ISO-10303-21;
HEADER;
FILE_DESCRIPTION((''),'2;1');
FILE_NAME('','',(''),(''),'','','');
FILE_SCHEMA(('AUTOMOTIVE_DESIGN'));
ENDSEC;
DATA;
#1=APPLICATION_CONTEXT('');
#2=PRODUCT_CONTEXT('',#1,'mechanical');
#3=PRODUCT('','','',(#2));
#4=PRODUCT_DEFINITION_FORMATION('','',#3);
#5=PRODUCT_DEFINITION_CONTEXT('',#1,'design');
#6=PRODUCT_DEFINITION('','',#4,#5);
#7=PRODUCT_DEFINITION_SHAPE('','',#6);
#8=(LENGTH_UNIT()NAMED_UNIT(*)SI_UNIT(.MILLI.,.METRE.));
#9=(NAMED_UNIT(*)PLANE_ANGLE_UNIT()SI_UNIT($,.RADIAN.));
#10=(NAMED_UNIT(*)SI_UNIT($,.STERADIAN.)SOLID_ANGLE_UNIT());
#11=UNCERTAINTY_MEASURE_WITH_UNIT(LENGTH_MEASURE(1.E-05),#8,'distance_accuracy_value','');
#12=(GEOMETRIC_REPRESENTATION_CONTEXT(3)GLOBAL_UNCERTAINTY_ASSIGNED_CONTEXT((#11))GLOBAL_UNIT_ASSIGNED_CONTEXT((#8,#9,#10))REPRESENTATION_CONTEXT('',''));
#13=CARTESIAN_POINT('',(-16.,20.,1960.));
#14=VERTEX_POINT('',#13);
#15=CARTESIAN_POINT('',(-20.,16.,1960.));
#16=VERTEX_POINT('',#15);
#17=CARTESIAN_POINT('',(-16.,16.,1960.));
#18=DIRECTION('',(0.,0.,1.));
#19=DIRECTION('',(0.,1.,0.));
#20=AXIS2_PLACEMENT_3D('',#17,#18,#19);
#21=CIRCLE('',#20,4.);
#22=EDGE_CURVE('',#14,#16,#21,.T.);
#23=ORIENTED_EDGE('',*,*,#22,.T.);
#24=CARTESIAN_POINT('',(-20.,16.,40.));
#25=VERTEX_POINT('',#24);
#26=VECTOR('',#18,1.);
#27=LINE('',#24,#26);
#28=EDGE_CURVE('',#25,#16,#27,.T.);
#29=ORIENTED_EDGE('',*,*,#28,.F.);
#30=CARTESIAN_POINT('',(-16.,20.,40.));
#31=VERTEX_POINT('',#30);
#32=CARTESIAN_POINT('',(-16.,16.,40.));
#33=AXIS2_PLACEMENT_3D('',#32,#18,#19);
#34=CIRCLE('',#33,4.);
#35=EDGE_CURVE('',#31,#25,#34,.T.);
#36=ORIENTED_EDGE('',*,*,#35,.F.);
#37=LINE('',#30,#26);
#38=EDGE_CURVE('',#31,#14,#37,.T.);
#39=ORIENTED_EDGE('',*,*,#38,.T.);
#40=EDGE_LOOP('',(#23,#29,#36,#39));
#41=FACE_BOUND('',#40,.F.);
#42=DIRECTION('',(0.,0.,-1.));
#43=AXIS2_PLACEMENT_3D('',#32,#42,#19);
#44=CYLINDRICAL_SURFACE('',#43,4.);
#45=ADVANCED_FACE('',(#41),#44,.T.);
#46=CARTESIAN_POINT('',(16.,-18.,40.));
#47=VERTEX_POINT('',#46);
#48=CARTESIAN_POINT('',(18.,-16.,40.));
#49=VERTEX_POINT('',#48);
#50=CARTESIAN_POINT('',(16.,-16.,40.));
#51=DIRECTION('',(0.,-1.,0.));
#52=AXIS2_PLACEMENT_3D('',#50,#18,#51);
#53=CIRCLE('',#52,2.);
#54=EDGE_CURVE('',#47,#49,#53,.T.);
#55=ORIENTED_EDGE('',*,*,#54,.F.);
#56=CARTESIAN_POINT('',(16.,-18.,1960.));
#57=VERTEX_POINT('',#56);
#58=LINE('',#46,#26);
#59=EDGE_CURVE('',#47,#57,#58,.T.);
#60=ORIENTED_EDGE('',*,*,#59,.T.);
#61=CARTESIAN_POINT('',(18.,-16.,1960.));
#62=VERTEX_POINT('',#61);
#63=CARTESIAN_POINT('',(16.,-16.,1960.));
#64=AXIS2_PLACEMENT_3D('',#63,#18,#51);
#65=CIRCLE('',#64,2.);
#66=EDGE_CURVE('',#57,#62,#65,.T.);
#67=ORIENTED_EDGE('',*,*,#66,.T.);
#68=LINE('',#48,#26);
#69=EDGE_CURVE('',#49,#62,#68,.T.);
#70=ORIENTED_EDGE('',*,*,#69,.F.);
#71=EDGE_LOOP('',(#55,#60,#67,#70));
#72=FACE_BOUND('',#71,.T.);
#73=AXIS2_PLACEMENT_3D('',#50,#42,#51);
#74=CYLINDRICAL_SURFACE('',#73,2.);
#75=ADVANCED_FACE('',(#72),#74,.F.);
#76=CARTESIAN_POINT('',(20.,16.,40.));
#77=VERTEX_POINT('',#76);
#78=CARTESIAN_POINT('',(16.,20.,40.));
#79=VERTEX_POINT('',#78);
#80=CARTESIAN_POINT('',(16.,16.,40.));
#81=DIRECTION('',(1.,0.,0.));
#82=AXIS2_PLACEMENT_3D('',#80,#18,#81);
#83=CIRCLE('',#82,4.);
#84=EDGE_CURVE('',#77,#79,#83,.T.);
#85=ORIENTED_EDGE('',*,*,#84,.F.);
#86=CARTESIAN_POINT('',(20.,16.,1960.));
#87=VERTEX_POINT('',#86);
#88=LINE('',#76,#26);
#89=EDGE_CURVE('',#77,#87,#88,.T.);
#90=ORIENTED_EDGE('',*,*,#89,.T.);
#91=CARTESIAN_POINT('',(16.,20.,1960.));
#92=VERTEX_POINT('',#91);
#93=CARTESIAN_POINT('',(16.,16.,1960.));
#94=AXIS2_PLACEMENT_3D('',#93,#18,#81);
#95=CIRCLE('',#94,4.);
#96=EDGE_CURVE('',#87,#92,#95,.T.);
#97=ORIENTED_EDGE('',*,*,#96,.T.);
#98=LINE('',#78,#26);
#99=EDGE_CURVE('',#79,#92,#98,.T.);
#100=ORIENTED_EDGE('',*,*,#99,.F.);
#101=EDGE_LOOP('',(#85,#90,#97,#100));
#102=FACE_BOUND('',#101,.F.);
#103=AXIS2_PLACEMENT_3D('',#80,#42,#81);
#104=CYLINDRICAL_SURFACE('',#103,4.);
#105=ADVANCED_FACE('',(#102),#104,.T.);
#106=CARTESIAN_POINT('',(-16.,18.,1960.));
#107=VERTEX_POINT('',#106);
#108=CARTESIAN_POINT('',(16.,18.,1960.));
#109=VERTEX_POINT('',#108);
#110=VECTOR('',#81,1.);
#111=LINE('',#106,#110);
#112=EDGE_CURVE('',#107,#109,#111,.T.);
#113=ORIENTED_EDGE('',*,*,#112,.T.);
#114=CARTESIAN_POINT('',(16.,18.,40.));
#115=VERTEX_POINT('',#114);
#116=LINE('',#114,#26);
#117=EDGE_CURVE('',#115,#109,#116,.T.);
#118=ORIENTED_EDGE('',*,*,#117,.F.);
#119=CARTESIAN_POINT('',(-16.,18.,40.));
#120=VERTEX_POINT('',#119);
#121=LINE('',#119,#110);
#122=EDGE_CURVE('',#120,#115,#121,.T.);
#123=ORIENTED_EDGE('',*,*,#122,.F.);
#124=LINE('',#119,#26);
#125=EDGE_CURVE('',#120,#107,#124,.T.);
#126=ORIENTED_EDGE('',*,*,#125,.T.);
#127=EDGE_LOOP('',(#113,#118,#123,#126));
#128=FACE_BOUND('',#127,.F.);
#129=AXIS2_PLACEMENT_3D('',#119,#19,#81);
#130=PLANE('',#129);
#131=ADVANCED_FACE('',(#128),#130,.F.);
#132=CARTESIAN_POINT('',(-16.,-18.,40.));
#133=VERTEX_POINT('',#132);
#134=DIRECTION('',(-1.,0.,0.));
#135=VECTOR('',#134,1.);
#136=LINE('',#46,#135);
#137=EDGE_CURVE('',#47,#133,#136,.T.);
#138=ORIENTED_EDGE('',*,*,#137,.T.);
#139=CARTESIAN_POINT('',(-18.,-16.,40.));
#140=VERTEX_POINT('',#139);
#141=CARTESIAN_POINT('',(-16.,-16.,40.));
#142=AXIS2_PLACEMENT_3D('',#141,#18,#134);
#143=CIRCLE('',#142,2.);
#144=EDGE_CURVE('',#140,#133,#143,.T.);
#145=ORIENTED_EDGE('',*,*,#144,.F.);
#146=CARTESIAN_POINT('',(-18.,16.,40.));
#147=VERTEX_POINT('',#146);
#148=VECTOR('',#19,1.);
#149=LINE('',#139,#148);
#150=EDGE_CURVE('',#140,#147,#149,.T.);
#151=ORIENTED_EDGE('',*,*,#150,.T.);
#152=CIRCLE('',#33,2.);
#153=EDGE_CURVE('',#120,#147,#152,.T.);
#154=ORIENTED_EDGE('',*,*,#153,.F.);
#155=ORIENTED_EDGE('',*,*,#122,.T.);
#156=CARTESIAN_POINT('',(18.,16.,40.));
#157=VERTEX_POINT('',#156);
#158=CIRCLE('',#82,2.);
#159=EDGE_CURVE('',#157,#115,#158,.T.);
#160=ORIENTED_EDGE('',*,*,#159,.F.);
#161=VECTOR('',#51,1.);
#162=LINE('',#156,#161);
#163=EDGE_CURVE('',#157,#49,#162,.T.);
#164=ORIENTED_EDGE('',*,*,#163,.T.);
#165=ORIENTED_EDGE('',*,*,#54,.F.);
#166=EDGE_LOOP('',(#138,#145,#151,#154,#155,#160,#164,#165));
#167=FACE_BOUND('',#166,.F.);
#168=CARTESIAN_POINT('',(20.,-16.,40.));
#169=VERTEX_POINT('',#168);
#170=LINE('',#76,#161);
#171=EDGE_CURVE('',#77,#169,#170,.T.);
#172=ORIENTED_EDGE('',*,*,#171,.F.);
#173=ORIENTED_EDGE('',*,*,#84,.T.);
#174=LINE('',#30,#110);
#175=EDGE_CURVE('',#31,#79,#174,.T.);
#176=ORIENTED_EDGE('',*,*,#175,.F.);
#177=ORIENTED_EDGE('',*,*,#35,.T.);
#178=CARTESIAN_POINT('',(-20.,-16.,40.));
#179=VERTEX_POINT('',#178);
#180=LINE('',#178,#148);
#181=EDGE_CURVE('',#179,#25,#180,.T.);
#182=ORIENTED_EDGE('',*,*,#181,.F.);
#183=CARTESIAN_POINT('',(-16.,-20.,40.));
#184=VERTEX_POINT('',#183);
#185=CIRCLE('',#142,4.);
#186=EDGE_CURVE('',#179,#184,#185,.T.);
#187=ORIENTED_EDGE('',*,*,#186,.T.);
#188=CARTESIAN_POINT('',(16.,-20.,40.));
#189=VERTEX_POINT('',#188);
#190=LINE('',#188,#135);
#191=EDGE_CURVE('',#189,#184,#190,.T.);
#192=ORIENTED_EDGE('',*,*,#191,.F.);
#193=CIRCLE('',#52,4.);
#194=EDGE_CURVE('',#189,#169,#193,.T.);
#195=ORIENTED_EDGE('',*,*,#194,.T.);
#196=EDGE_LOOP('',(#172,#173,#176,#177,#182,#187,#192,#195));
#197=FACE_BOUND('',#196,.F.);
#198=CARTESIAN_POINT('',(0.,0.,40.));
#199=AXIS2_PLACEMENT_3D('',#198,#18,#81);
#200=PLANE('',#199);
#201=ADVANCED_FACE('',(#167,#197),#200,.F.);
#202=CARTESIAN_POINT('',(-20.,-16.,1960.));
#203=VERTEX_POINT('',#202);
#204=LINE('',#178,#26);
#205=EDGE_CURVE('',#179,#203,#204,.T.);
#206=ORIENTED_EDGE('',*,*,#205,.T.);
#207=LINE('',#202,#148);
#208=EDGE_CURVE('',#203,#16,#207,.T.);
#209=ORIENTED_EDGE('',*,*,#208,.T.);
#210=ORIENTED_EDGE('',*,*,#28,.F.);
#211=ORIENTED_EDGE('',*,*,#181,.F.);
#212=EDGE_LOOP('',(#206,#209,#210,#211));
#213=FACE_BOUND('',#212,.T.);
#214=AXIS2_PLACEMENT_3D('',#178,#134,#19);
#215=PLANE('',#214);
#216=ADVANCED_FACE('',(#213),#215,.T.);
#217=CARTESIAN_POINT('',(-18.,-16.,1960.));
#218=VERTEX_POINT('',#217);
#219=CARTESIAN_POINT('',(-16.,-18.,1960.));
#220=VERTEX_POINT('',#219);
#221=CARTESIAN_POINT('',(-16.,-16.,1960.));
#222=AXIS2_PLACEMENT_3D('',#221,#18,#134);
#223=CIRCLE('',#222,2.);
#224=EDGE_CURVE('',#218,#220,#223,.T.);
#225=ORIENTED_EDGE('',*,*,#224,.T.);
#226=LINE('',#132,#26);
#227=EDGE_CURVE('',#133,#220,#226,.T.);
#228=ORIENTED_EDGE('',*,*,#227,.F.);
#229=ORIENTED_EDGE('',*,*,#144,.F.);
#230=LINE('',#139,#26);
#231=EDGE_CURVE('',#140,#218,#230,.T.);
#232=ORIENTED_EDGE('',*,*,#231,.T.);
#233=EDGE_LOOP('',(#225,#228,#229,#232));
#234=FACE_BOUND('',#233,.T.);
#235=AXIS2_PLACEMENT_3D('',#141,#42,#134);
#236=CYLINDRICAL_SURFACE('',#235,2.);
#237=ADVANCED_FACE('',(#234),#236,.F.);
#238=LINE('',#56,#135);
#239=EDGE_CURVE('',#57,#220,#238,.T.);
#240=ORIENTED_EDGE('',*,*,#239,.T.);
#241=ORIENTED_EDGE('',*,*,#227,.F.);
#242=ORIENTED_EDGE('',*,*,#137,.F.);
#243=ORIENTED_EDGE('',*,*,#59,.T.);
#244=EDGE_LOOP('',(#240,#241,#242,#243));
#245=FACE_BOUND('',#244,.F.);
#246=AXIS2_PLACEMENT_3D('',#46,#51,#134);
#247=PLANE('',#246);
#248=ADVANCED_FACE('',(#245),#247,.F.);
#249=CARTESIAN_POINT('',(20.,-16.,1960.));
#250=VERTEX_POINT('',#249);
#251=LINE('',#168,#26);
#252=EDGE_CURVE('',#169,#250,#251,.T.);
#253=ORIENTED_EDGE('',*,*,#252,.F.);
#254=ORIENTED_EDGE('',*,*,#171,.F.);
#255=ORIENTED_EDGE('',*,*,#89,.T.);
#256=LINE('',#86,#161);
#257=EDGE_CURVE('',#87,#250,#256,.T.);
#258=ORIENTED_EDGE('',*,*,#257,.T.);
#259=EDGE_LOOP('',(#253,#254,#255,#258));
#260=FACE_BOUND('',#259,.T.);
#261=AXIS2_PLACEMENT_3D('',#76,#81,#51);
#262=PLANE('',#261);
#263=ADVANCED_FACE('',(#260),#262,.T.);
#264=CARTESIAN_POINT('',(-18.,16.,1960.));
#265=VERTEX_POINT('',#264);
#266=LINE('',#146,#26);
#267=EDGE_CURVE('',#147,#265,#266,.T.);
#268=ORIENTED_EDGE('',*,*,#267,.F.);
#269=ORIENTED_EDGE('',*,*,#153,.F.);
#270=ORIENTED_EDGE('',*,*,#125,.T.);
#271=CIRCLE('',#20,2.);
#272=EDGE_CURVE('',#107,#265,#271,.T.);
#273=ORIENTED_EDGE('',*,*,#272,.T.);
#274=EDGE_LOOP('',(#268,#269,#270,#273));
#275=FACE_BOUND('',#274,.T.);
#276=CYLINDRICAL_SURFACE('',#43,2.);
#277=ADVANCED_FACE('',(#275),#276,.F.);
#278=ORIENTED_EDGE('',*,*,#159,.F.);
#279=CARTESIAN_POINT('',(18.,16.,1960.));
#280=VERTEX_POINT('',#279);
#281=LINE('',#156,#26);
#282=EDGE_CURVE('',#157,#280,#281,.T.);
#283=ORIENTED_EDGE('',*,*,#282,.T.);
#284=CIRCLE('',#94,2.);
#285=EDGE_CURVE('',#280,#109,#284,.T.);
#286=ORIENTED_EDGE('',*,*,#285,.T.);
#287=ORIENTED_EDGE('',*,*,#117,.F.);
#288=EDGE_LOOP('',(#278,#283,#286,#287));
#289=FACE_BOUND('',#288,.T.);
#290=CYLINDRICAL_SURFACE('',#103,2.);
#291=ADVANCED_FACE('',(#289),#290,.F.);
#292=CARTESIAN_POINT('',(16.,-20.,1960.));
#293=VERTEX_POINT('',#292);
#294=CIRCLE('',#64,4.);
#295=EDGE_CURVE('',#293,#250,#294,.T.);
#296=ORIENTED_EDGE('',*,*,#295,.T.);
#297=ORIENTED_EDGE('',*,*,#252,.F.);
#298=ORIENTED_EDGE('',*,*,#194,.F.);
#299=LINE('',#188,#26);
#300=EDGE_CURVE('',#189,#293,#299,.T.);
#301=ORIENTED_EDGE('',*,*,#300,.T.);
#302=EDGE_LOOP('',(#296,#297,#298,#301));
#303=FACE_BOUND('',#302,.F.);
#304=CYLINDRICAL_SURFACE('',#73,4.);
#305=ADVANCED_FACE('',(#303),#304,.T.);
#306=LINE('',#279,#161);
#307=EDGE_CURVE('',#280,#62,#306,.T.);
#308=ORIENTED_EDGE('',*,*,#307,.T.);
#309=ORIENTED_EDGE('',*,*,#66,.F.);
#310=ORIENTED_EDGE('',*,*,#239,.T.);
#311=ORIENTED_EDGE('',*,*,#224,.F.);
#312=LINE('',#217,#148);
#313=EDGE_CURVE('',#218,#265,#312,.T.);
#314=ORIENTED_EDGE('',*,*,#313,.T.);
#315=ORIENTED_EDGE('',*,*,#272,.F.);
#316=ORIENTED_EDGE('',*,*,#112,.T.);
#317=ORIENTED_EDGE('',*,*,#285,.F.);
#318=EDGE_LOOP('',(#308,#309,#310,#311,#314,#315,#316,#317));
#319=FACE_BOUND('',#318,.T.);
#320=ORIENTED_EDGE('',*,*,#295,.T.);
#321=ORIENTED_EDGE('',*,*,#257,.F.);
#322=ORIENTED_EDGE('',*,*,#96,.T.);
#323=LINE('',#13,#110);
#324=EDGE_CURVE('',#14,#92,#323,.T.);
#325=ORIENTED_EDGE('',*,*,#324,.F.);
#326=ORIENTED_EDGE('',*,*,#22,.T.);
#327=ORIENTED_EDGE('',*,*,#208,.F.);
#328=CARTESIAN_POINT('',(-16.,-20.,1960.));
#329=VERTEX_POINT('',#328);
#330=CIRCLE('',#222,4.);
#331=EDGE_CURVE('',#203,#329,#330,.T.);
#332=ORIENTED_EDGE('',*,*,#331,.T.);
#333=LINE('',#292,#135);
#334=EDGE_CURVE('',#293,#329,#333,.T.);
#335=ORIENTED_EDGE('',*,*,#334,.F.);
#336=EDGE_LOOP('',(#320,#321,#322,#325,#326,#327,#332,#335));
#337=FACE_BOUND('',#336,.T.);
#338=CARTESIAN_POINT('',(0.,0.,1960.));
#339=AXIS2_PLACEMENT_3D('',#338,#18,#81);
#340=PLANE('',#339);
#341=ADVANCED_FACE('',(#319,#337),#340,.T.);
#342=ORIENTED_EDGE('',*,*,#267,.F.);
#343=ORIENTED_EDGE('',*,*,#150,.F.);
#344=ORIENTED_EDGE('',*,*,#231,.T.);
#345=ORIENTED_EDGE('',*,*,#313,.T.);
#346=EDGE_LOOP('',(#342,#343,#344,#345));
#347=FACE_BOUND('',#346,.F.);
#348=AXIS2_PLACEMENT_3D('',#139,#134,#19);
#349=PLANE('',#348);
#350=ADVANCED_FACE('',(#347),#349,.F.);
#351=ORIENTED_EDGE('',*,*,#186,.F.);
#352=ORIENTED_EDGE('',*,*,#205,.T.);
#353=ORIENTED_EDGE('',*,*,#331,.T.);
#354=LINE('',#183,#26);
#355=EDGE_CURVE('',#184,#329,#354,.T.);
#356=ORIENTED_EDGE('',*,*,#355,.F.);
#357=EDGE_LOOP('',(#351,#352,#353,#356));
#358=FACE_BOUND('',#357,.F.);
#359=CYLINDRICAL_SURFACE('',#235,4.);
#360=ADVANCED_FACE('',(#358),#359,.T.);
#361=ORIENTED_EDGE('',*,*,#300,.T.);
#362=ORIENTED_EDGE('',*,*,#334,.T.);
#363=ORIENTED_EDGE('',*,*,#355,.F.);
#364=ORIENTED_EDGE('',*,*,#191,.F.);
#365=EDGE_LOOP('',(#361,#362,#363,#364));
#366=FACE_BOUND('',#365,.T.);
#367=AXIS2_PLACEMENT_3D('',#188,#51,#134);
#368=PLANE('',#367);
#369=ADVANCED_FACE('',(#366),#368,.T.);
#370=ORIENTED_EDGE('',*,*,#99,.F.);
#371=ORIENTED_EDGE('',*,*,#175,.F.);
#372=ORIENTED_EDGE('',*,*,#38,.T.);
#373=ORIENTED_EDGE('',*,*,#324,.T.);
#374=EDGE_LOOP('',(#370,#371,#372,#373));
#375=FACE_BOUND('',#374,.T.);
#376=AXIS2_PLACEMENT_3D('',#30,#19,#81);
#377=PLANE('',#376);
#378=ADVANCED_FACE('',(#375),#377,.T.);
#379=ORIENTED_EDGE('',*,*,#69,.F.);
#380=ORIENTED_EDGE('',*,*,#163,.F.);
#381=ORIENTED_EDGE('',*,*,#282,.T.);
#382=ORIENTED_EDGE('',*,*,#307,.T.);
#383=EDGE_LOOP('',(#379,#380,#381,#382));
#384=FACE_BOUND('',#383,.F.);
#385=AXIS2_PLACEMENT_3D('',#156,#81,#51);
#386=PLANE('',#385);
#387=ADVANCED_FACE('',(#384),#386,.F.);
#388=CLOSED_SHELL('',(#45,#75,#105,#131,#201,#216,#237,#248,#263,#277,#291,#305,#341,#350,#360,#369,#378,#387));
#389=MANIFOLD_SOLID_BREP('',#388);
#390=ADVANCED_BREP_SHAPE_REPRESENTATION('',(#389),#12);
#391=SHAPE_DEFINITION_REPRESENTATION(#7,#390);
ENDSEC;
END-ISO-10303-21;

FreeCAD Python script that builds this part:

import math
import FreeCAD as App
import Part
import Sketcher
Q = App.Units.Quantity

doc = App.newDocument("Part")
body = doc.addObject("PartDesign::Body", "Body")

# Sketch on XY plane
sketch1 = body.newObject("Sketcher::SketchObject", "Sketch")
sketch1.AttachmentSupport = (doc.getObject("XY_Plane"), [""])
sketch1.MapMode = "FlatFace"
sketch1.AttachmentOffset = App.Placement(App.Vector(0, 0, 40), App.Rotation())
sketch1.addGeometry([
    Part.LineSegment(App.Vector(-20, 16, 0), App.Vector(-20, -16, 0)),  # 0
    Part.ArcOfCircle(Part.Circle(App.Vector(-16, -16, 0), App.Vector(0, 0, 1), 4), math.radians(180), math.radians(270)),  # 1
    Part.LineSegment(App.Vector(-16, -20, 0), App.Vector(16, -20, 0)),  # 2
    Part.ArcOfCircle(Part.Circle(App.Vector(16, -16, 0), App.Vector(0, 0, 1), 4), math.radians(-90), math.radians(0)),  # 3
    Part.LineSegment(App.Vector(20, -16, 0), App.Vector(20, 16, 0)),  # 4
    Part.ArcOfCircle(Part.Circle(App.Vector(16, 16, 0), App.Vector(0, 0, 1), 4), math.radians(0), math.radians(90)),  # 5
    Part.LineSegment(App.Vector(16, 20, 0), App.Vector(-16, 20, 0)),  # 6
    Part.ArcOfCircle(Part.Circle(App.Vector(-16, 16, 0), App.Vector(0, 0, 1), 4), math.radians(90), math.radians(180)),  # 7
    Part.ArcOfCircle(Part.Circle(App.Vector(-16, 16, 0), App.Vector(0, 0, 1), 2), math.radians(90), math.radians(180)),  # 8
    Part.LineSegment(App.Vector(-16, 18, 0), App.Vector(16, 18, 0)),  # 9
    Part.ArcOfCircle(Part.Circle(App.Vector(16, 16, 0), App.Vector(0, 0, 1), 2), math.radians(0), math.radians(90)),  # 10
    Part.LineSegment(App.Vector(18, 16, 0), App.Vector(18, -16, 0)),  # 11
    Part.ArcOfCircle(Part.Circle(App.Vector(16, -16, 0), App.Vector(0, 0, 1), 2), math.radians(-90), math.radians(0)),  # 12
    Part.LineSegment(App.Vector(16, -18, 0), App.Vector(-16, -18, 0)),  # 13
    Part.ArcOfCircle(Part.Circle(App.Vector(-16, -16, 0), App.Vector(0, 0, 1), 2), math.radians(180), math.radians(270)),  # 14
    Part.LineSegment(App.Vector(-18, -16, 0), App.Vector(-18, 16, 0)),  # 15
], False)
sketch1.addConstraint([
    Sketcher.Constraint("Tangent", 0, 2, 1, 1),
    Sketcher.Constraint("Tangent", 1, 2, 2, 1),
    Sketcher.Constraint("Tangent", 2, 2, 3, 1),
    Sketcher.Constraint("Tangent", 3, 2, 4, 1),
    Sketcher.Constraint("Tangent", 4, 2, 5, 1),
    Sketcher.Constraint("Tangent", 5, 2, 6, 1),
    Sketcher.Constraint("Tangent", 6, 2, 7, 1),
    Sketcher.Constraint("Tangent", 7, 2, 0, 1),
    Sketcher.Constraint("Tangent", 8, 1, 9, 1),
    Sketcher.Constraint("Tangent", 9, 2, 10, 2),
    Sketcher.Constraint("Tangent", 10, 1, 11, 1),
    Sketcher.Constraint("Tangent", 11, 2, 12, 2),
    Sketcher.Constraint("Tangent", 12, 1, 13, 1),
    Sketcher.Constraint("Tangent", 13, 2, 14, 2),
    Sketcher.Constraint("Tangent", 14, 1, 15, 1),
    Sketcher.Constraint("Tangent", 15, 2, 8, 2),
    Sketcher.Constraint("Vertical", 0),
    Sketcher.Constraint("Horizontal", 2),
    Sketcher.Constraint("Vertical", 4),
    Sketcher.Constraint("Horizontal", 6),
    Sketcher.Constraint("Horizontal", 9),
    Sketcher.Constraint("Vertical", 11),
    Sketcher.Constraint("Horizontal", 13),
    Sketcher.Constraint("Vertical", 15),
    Sketcher.Constraint("Coincident", 8, 3, 7, 3),
    Sketcher.Constraint("Coincident", 10, 3, 5, 3),
    Sketcher.Constraint("Coincident", 12, 3, 3, 3),
    Sketcher.Constraint("Equal", 1, 3),
    Sketcher.Constraint("Equal", 3, 5),
    Sketcher.Constraint("Equal", 5, 7),
    Sketcher.Constraint("Equal", 12, 14),
    Sketcher.Constraint("Symmetric", 1, 3, 5, 3, -1, 1),
    Sketcher.Constraint("Equal", 13, 0),
    Sketcher.Constraint("Radius", 1, Q("4 mm")),
    Sketcher.Constraint("Radius", 8, Q("2 mm")),
    Sketcher.Constraint("DistanceX", 0, 2, -1, 1, Q("20 mm")),
])
pad1 = body.newObject("PartDesign::Pad", "Pad")
pad1.Profile = sketch1
pad1.Length = 1920

doc.recompute()
